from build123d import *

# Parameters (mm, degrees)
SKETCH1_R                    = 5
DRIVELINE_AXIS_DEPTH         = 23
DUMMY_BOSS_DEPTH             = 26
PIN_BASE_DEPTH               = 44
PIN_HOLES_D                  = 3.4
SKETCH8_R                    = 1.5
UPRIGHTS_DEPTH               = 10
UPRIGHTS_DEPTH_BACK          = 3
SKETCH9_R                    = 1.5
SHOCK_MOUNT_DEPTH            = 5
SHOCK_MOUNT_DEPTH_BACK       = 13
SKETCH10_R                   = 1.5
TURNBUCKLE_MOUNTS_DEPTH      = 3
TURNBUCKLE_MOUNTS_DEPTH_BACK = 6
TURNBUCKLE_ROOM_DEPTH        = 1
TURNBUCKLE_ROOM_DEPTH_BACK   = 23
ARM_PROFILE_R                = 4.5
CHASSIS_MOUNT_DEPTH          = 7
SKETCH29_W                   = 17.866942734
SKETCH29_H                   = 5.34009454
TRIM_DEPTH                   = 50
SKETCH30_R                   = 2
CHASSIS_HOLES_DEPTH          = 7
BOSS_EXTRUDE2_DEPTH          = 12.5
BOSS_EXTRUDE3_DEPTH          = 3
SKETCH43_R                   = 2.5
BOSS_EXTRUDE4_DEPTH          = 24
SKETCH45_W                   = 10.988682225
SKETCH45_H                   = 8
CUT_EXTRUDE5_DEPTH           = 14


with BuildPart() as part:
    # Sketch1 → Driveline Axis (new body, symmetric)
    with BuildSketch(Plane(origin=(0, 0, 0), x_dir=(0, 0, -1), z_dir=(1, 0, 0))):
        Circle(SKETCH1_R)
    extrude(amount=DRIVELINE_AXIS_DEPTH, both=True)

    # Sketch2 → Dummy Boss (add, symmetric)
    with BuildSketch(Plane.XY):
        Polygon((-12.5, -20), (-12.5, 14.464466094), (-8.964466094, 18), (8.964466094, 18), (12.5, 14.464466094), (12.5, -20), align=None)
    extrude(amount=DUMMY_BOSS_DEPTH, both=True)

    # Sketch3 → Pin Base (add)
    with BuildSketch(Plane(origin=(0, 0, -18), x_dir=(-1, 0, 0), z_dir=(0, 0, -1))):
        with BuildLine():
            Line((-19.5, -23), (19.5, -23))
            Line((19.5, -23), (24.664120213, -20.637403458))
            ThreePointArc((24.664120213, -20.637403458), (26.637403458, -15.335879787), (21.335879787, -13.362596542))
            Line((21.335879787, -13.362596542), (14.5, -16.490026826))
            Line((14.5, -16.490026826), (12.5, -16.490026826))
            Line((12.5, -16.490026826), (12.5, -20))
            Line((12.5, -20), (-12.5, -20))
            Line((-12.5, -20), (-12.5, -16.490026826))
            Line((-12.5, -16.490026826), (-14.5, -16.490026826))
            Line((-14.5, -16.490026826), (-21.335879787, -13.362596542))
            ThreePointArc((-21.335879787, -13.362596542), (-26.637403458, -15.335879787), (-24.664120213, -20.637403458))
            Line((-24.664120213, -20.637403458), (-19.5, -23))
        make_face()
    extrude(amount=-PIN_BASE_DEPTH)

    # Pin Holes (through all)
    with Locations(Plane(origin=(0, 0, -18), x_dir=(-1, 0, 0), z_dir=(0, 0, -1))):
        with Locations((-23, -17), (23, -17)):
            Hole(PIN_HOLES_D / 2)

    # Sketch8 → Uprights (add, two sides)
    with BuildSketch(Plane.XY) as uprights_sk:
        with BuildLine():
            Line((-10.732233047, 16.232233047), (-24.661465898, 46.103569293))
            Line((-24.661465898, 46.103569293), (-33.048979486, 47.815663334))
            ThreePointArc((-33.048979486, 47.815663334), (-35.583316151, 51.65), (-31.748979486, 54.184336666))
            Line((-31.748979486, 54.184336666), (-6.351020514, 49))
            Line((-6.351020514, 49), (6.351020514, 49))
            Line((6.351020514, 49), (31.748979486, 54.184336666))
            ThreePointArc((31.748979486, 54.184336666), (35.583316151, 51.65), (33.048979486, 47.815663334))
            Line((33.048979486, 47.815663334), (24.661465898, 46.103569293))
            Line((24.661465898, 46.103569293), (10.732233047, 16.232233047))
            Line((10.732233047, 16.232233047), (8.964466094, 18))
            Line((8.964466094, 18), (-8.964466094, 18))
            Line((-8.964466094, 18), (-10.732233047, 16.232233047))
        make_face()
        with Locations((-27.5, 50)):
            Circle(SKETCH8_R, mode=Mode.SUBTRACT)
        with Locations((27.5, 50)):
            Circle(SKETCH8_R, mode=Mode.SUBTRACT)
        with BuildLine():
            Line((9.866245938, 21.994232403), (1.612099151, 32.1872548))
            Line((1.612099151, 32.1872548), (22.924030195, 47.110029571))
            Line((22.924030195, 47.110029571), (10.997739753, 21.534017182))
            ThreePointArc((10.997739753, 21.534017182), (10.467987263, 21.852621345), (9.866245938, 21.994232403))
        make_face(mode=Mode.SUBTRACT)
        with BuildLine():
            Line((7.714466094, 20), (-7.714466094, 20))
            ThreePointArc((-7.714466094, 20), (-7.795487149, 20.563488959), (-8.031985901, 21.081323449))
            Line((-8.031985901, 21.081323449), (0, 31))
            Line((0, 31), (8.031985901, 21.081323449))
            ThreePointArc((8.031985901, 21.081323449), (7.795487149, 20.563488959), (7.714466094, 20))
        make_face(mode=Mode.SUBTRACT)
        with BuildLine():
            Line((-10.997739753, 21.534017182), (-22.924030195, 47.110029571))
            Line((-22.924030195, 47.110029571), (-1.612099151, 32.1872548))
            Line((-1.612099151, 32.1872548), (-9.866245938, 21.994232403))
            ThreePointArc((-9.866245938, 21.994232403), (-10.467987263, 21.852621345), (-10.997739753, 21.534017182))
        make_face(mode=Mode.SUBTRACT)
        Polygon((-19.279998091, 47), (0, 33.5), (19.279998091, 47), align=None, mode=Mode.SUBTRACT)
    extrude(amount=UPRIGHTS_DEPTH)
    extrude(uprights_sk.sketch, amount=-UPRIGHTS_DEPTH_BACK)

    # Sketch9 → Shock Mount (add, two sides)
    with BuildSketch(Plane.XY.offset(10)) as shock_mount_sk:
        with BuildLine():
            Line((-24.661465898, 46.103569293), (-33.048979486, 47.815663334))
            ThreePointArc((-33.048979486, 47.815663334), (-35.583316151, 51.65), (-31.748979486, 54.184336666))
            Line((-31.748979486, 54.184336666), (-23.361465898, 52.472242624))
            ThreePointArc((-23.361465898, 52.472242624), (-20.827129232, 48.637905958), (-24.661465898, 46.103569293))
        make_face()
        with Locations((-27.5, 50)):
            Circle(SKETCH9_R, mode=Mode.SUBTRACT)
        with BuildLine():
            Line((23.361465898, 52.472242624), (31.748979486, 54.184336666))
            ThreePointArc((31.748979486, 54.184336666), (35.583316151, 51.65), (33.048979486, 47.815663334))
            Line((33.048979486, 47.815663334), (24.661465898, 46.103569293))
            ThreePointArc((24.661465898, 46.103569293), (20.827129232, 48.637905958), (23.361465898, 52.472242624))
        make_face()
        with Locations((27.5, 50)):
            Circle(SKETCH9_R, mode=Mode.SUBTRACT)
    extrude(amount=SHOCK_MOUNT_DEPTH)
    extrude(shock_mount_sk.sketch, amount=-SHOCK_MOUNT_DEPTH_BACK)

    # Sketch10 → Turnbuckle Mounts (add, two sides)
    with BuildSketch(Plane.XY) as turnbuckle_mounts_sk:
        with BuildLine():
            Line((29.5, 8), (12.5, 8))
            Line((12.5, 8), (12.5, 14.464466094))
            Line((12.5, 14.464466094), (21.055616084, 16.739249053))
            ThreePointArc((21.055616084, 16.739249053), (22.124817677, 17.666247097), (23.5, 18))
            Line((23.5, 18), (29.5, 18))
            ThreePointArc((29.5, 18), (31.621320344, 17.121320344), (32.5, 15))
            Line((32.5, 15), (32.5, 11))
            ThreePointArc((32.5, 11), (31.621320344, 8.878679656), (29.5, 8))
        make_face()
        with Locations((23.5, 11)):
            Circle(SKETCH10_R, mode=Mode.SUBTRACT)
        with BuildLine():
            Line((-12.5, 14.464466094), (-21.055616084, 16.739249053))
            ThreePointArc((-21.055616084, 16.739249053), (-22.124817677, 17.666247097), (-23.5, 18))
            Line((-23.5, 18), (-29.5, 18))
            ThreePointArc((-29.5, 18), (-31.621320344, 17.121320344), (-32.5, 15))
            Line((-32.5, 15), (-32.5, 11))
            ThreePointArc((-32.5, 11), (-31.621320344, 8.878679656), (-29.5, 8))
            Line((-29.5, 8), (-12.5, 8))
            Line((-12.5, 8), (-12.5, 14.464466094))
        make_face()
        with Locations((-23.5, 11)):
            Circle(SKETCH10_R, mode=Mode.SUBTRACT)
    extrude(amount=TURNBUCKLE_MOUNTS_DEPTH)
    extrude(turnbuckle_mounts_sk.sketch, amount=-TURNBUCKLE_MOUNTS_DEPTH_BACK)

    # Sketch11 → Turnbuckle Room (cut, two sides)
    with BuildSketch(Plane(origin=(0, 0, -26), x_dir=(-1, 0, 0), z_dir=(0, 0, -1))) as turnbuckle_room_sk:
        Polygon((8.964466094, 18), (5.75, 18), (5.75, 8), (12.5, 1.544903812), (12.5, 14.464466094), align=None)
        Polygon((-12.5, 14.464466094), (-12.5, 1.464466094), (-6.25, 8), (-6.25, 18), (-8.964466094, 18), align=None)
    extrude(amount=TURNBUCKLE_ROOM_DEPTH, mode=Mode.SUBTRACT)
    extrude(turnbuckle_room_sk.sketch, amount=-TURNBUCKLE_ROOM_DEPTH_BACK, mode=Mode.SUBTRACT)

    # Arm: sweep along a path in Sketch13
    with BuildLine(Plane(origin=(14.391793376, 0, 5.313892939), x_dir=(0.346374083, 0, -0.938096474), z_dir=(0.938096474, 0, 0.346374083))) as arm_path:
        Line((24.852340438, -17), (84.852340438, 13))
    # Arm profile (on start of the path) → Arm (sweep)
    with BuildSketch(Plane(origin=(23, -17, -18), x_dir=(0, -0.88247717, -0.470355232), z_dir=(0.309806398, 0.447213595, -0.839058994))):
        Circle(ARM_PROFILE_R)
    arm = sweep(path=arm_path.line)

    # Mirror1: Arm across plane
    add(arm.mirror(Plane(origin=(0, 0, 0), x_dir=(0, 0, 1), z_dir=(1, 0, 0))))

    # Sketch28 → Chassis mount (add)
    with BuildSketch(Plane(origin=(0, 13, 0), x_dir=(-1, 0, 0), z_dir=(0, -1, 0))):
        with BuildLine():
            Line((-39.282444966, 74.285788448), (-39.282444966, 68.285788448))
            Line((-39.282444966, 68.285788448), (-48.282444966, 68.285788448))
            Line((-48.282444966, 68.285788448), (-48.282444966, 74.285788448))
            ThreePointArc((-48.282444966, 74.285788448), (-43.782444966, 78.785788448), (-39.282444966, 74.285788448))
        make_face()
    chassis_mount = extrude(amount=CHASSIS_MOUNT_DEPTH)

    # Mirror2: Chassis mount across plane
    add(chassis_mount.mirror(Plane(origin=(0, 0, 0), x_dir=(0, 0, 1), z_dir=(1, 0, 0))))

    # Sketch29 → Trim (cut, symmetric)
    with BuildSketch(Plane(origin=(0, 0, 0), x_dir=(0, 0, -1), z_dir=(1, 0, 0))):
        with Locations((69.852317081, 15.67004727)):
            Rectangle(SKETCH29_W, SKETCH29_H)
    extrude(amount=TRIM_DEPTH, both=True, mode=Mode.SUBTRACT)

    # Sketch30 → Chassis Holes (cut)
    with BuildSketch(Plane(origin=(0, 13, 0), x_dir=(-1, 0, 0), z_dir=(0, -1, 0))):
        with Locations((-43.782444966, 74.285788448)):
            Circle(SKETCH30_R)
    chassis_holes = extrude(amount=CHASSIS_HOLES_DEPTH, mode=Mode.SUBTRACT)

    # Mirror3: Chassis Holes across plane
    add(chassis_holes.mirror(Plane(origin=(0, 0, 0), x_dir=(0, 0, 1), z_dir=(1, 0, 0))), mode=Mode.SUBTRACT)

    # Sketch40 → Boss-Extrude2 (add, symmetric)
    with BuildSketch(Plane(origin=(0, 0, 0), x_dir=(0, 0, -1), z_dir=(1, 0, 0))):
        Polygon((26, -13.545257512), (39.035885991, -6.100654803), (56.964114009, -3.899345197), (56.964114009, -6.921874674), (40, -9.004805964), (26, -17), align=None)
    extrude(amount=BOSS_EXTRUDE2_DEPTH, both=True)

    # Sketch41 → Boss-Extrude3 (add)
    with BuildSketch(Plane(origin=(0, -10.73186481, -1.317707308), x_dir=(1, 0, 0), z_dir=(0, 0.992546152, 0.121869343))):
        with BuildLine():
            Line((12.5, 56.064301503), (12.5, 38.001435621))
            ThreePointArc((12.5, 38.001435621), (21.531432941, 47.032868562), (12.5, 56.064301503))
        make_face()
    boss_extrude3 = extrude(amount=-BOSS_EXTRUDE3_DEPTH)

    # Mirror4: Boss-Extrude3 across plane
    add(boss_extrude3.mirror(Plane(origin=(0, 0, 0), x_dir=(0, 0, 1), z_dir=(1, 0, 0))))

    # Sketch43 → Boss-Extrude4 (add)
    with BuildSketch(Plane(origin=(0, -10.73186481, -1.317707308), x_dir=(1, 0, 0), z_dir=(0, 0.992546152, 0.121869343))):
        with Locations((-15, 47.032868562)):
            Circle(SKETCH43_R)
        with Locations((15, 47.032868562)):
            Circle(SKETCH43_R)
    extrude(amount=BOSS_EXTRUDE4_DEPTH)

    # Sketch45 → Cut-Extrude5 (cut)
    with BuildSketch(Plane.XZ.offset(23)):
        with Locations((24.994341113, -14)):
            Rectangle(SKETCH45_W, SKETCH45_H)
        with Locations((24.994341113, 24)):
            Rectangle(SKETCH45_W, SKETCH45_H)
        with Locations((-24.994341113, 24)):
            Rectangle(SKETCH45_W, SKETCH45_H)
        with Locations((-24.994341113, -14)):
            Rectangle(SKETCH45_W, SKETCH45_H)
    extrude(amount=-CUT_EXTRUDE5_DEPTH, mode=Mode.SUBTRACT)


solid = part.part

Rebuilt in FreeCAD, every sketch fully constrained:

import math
import FreeCAD as App
import Part
import Sketcher
from FreeCAD import Vector
Q = App.Units.Quantity


def add_polygon(sketch, points):
    """Adds a closed chain of lines whose ends are joined by coincident constraints."""
    first, n = sketch.GeometryCount, len(points)
    for a, b in zip(points, points[1:] + points[:1]):
        sketch.addGeometry(Part.LineSegment(App.Vector(*a, 0), App.Vector(*b, 0)), False)
    for i in range(n):
        sketch.addConstraint(Sketcher.Constraint("Coincident", first + i, 2, first + (i + 1) % n, 1))

doc = App.newDocument("Part")
body = doc.addObject("PartDesign::Body", "Body")

sketch1 = body.newObject("Sketcher::SketchObject", "Sketch")
sketch1.AttachmentSupport = (doc.getObject("YZ_Plane"), [""])
sketch1.MapMode = "FlatFace"
sketch1.addGeometry(Part.Circle(Vector(0, 0, 0), Vector(0, 0, 1), 5), False)
sketch1.addConstraint([
    Sketcher.Constraint("Coincident", 0, 3, -1, 1),
    Sketcher.Constraint("Diameter", 0, Q("10 mm")),
])
pad1 = body.newObject("PartDesign::Pad", "Pad")
pad1.Profile = sketch1
pad1.Length = 46
pad1.Midplane = True

sketch2 = body.newObject("Sketcher::SketchObject", "Sketch001")
sketch2.AttachmentSupport = (doc.getObject("XY_Plane"), [""])
sketch2.MapMode = "FlatFace"
add_polygon(sketch2, [(-12, 14), (-12, -20), (12, -20), (12, 14), (9, 18), (-9, 18)])
sketch2.addConstraint([
    Sketcher.Constraint("Vertical", 0),
    Sketcher.Constraint("Horizontal", 1),
    Sketcher.Constraint("Vertical", 2),
    Sketcher.Constraint("Horizontal", 4),
    Sketcher.Constraint("Symmetric", 2, 2, 5, 2, -2),
    Sketcher.Constraint("Perpendicular", 3, 5),
    Sketcher.Constraint("Equal", 3, 5),
    Sketcher.Constraint("DistanceX", 1, 1, 1, 2, Q("25 mm")),
    Sketcher.Constraint("Distance", 3, Q("5 mm")),
    Sketcher.Constraint("DistanceY", 0, 2, -1, 1, Q("20 mm")),
    Sketcher.Constraint("DistanceY", -1, 1, 3, 2, Q("18 mm")),
])
pad2 = body.newObject("PartDesign::Pad", "Pad001")
pad2.Profile = sketch2
pad2.Length = 52
pad2.Midplane = True

sketch3 = body.newObject("Sketcher::SketchObject", "Sketch002")
sketch3.AttachmentSupport = (doc.getObject("XY_Plane"), [""])
sketch3.MapMode = "FlatFace"
sketch3.AttachmentOffset = App.Placement(Vector(0, 0, -18), App.Rotation())
sketch3.addGeometry([
    Part.LineSegment(Vector(19.5, -23, 0), Vector(-19.5, -23, 0)),
    Part.LineSegment(Vector(-19.5, -23, 0), Vector(-24.7, -20.6, 0)),
    Part.ArcOfCircle(Part.Circle(Vector(-23, -17, 0), Vector(0, 0, 1), 4), math.radians(65), math.radians(245)),
    Part.LineSegment(Vector(-21.3, -13.4, 0), Vector(-14.5, -16.5, 0)),
    Part.LineSegment(Vector(-14.5, -16.5, 0), Vector(-12.5, -16.5, 0)),
    Part.LineSegment(Vector(-12.5, -16.5, 0), Vector(-12.5, -20, 0)),
    Part.LineSegment(Vector(-12.5, -20, 0), Vector(12.5, -20, 0)),
    Part.LineSegment(Vector(12.5, -20, 0), Vector(12.5, -16.5, 0)),
    Part.LineSegment(Vector(12.5, -16.5, 0), Vector(14.5, -16.5, 0)),
    Part.LineSegment(Vector(14.5, -16.5, 0), Vector(21.3, -13.4, 0)),
    Part.ArcOfCircle(Part.Circle(Vector(23, -17, 0), Vector(0, 0, 1), 4), math.radians(-65), math.radians(115)),
    Part.LineSegment(Vector(24.7, -20.6, 0), Vector(19.5, -23, 0)),
], False)
sketch3.addConstraint([
    Sketcher.Constraint("Coincident", 0, 2, 1, 1),
    Sketcher.Constraint("Tangent", 1, 2, 2, 2),
    Sketcher.Constraint("Tangent", 2, 1, 3, 1),
    Sketcher.Constraint("Coincident", 3, 2, 4, 1),
    Sketcher.Constraint("Coincident", 4, 2, 5, 1),
    Sketcher.Constraint("Coincident", 5, 2, 6, 1),
    Sketcher.Constraint("Coincident", 6, 2, 7, 1),
    Sketcher.Constraint("Coincident", 7, 2, 8, 1),
    Sketcher.Constraint("Coincident", 8, 2, 9, 1),
    Sketcher.Constraint("Tangent", 9, 2, 10, 2),
    Sketcher.Constraint("Tangent", 10, 1, 11, 1),
    Sketcher.Constraint("Coincident", 11, 2, 0, 1),
    Sketcher.Constraint("Horizontal", 0),
    Sketcher.Constraint("Horizontal", 4),
    Sketcher.Constraint("Vertical", 5),
    Sketcher.Constraint("Horizontal", 6),
    Sketcher.Constraint("Vertical", 7),
    Sketcher.Constraint("Horizontal", 8),
    Sketcher.Constraint("Equal", 2, 10),
    Sketcher.Constraint("Symmetric", 2, 3, 10, 3, -2),
    Sketcher.Constraint("Symmetric", 4, 2, 7, 2, -2),
    Sketcher.Constraint("Parallel", 1, 3),
    Sketcher.Constraint("Parallel", 9, 11),
    Sketcher.Constraint("Horizontal", 2, 1, 9, 2),
    Sketcher.Constraint("Radius", 2, Q("4 mm")),
    Sketcher.Constraint("DistanceX", 0, 2, 0, 1, Q("39 mm")),
    Sketcher.Constraint("DistanceX", 4, 1, 4, 2, Q("2 mm")),
    Sketcher.Constraint("DistanceX", 6, 1, 6, 2, Q("25 mm")),
    Sketcher.Constraint("DistanceX", 2, 3, -1, 1, Q("23 mm")),
    Sketcher.Constraint("DistanceY", 2, 3, -1, 1, Q("17 mm")),
    Sketcher.Constraint("DistanceY", 0, 2, -1, 1, Q("23 mm")),
    Sketcher.Constraint("DistanceY", 5, 2, -1, 1, Q("20 mm")),
])
pad3 = body.newObject("PartDesign::Pad", "Pad002")
pad3.Profile = sketch3
pad3.Length = 44

sketch4 = body.newObject("Sketcher::SketchObject", "Sketch003")
sketch4.AttachmentSupport = (doc.getObject("XY_Plane"), [""])
sketch4.MapMode = "FlatFace"
sketch4.AttachmentOffset = App.Placement(Vector(0, 0, -18), App.Rotation())
sketch4.addGeometry([
    Part.Circle(Vector(23, -17, 0), Vector(0, 0, 1), 1.7),
    Part.Circle(Vector(-23, -17, 0), Vector(0, 0, 1), 1.7),
], False)
sketch4.addConstraint([
    Sketcher.Constraint("Equal", 0, 1),
    Sketcher.Constraint("Symmetric", 0, 3, 1, 3, -2),
    Sketcher.Constraint("Diameter", 0, Q("3.4 mm")),
    Sketcher.Constraint("DistanceX", -1, 1, 0, 3, Q("23 mm")),
    Sketcher.Constraint("DistanceY", 0, 3, -1, 1, Q("17 mm")),
])
doc.recompute()
hole = body.newObject("PartDesign::Hole", "Hole")
hole.Profile = sketch4
hole.ThreadType = "None"
hole.Diameter = 3.4
hole.DepthType = "ThroughAll"
hole.Reversed = True

sketch5 = body.newObject("Sketcher::SketchObject", "Sketch004")
sketch5.AttachmentSupport = (doc.getObject("XY_Plane"), [""])
sketch5.MapMode = "FlatFace"
sketch5.addGeometry(Part.LineSegment(Vector(-24.7, 46.1, 0), Vector(-10.7, 16.2, 0)), False)
sketch5.addGeometry(Part.LineSegment(Vector(-10.7, 16.2, 0), Vector(-9, 18, 0)), False)
sketch5.addGeometry(Part.LineSegment(Vector(-9, 18, 0), Vector(9, 18, 0)), False)
sketch5.addGeometry(Part.LineSegment(Vector(9, 18, 0), Vector(10.7, 16.2, 0)), False)
sketch5.addGeometry(Part.LineSegment(Vector(10.7, 16.2, 0), Vector(24.7, 46.1, 0)), False)
sketch5.addGeometry(Part.LineSegment(Vector(24.7, 46.1, 0), Vector(33, 47.8, 0)), False)
sketch5.addGeometry(Part.ArcOfCircle(Part.Circle(Vector(32.4, 51, 0), Vector(0, 0, 1), 3.2), math.radians(-78), math.radians(102)), False)
sketch5.addGeometry(Part.LineSegment(Vector(31.7, 54.2, 0), Vector(6.4, 49, 0)), False)
sketch5.addGeometry(Part.LineSegment(Vector(6.4, 49, 0), Vector(-6.4, 49, 0)), False)
sketch5.addGeometry(Part.LineSegment(Vector(-6.4, 49, 0), Vector(-31.7, 54.2, 0)), False)
sketch5.addGeometry(Part.ArcOfCircle(Part.Circle(Vector(-32.4, 51, 0), Vector(0, 0, 1), 3.2), math.radians(78), math.radians(258)), False)
sketch5.addGeometry(Part.LineSegment(Vector(-33, 47.8, 0), Vector(-24.7, 46.1, 0)), False)
sketch5.addGeometry(Part.LineSegment(Vector(9.9, 22, 0), Vector(1.6, 32.2, 0)), False)
sketch5.addGeometry(Part.LineSegment(Vector(1.6, 32.2, 0), Vector(22.9, 47.1, 0)), False)
sketch5.addGeometry(Part.LineSegment(Vector(22.9, 47.1, 0), Vector(11, 21.5, 0)), False)
sketch5.addGeometry(Part.ArcOfCircle(Part.Circle(Vector(9.7, 20, 0), Vector(0, 0, 1), 2), math.radians(50), math.radians(86)), False)
sketch5.addGeometry(Part.LineSegment(Vector(7.7, 20, 0), Vector(-7.7, 20, 0)), False)
sketch5.addGeometry(Part.ArcOfCircle(Part.Circle(Vector(-9.7, 20, 0), Vector(0, 0, 1), 2), math.radians(0), math.radians(33)), False)
sketch5.addGeometry(Part.LineSegment(Vector(-8, 21.1, 0), Vector(0, 31, 0)), False)
sketch5.addGeometry(Part.LineSegment(Vector(0, 31, 0), Vector(8, 21.1, 0)), False)
sketch5.addGeometry(Part.ArcOfCircle(Part.Circle(Vector(9.7, 20, 0), Vector(0, 0, 1), 2), math.radians(147), math.radians(180)), False)
sketch5.addGeometry(Part.LineSegment(Vector(-11, 21.5, 0), Vector(-22.9, 47.1, 0)), False)
sketch5.addGeometry(Part.LineSegment(Vector(-22.9, 47.1, 0), Vector(-1.6, 32.2, 0)), False)
sketch5.addGeometry(Part.LineSegment(Vector(-1.6, 32.2, 0), Vector(-9.9, 22, 0)), False)
sketch5.addGeometry(Part.ArcOfCircle(Part.Circle(Vector(-9.7, 20, 0), Vector(0, 0, 1), 2), math.radians(94), math.radians(130)), False)
sketch5.addGeometry(Part.Circle(Vector(27.5, 50, 0), Vector(0, 0, 1), 1.5), False)
add_polygon(sketch5, [(-19.3, 47), (19.3, 47), (0, 33.5)])
sketch5.addGeometry(Part.Circle(Vector(-27.5, 50, 0), Vector(0, 0, 1), 1.5), False)
sketch5.addConstraint([
    Sketcher.Constraint("Coincident", 0, 2, 1, 1),
    Sketcher.Constraint("Coincident", 1, 2, 2, 1),
    Sketcher.Constraint("Coincident", 2, 2, 3, 1),
    Sketcher.Constraint("Coincident", 3, 2, 4, 1),
    Sketcher.Constraint("Coincident", 4, 2, 5, 1),
    Sketcher.Constraint("Tangent", 5, 2, 6, 1),
    Sketcher.Constraint("Tangent", 6, 2, 7, 1),
    Sketcher.Constraint("Coincident", 7, 2, 8, 1),
    Sketcher.Constraint("Coincident", 8, 2, 9, 1),
    Sketcher.Constraint("Tangent", 9, 2, 10, 1),
    Sketcher.Constraint("Tangent", 10, 2, 11, 1),
    Sketcher.Constraint("Coincident", 11, 2, 0, 1),
    Sketcher.Constraint("Coincident", 12, 2, 13, 1),
    Sketcher.Constraint("Coincident", 13, 2, 14, 1),
    Sketcher.Constraint("Coincident", 14, 2, 15, 1),
    Sketcher.Constraint("Coincident", 15, 2, 12, 1),
    Sketcher.Constraint("Coincident", 16, 2, 17, 1),
    Sketcher.Constraint("Coincident", 17, 2, 18, 1),
    Sketcher.Constraint("Coincident", 18, 2, 19, 1),
    Sketcher.Constraint("Coincident", 19, 2, 20, 1),
    Sketcher.Constraint("Coincident", 20, 2, 16, 1),
    Sketcher.Constraint("Coincident", 21, 2, 22, 1),
    Sketcher.Constraint("Coincident", 22, 2, 23, 1),
    Sketcher.Constraint("Coincident", 23, 2, 24, 1),
    Sketcher.Constraint("Coincident", 24, 2, 21, 1),
    Sketcher.Constraint("Horizontal", 2),
    Sketcher.Constraint("Horizontal", 8),
    Sketcher.Constraint("Horizontal", 16),
    Sketcher.Constraint("Horizontal", 26),
    Sketcher.Constraint("Coincident", 20, 3, 15, 3),
    Sketcher.Constraint("Coincident", 24, 3, 17, 3),
    Sketcher.Constraint("Equal", 6, 10),
    Sketcher.Constraint("Equal", 15, 17),
    Sketcher.Constraint("Equal", 17, 20),
    Sketcher.Constraint("Equal", 20, 24),
    Sketcher.Constraint("Equal", 25, 29),
    Sketcher.Constraint("Symmetric", 6, 3, 10, 3, -2),
    Sketcher.Constraint("Symmetric", 15, 3, 17, 3, -2),
    Sketcher.Constraint("Symmetric", 25, 3, 29, 3, -2),
    Sketcher.Constraint("Symmetric", 0, 2, 3, 2, -2),
    Sketcher.Constraint("Symmetric", 4, 2, 11, 2, -2),
    Sketcher.Constraint("Symmetric", 13, 2, 21, 2, -2),
    Sketcher.Constraint("Symmetric", 12, 2, 22, 2, -2),
    Sketcher.Constraint("PointOnObject", 18, 2, -2),
    Sketcher.Constraint("PointOnObject", 27, 2, -2),
    Sketcher.Constraint("Perpendicular", 1, 3),
    Sketcher.Constraint("Parallel", 5, 7),
    Sketcher.Constraint("Parallel", 9, 11),
    Sketcher.Constraint("Parallel", 4, 14),
    Sketcher.Constraint("Parallel", 12, 19),
    Sketcher.Constraint("Parallel", 0, 21),
    Sketcher.Constraint("Parallel", 18, 23),
    Sketcher.Constraint("Parallel", 13, 27),
    Sketcher.Constraint("Parallel", 22, 28),
    Sketcher.Constraint("Horizontal", 24, 3, 16, 2),
    Sketcher.Constraint("Horizontal", 17, 2, 19, 2),
    Sketcher.Constraint("Equal", 1, 3),
    Sketcher.Constraint("Diameter", 25, Q("3 mm")),
    Sketcher.Constraint("Radius", 15, Q("2 mm")),
    Sketcher.Constraint("Angle", 0, Q("-65 deg")),
    Sketcher.Constraint("Angle", 12, Q("129 deg")),
    Sketcher.Constraint("Angle", 13, Q("35 deg")),
    Sketcher.Constraint("Radius", 6, Q("3.25 mm")),
    Sketcher.Constraint("DistanceY", -1, 1, 6, 3, Q("51 mm")),
    Sketcher.Constraint("DistanceY", -1, 1, 15, 3, Q("20 mm")),
    Sketcher.Constraint("DistanceY", -1, 1, 25, 3, Q("50 mm")),
    Sketcher.Constraint("DistanceY", -1, 1, 1, 2, Q("18 mm")),
    Sketcher.Constraint("DistanceY", -1, 1, 7, 2, Q("49 mm")),
    Sketcher.Constraint("DistanceY", -1, 1, 18, 2, Q("31 mm")),
    Sketcher.Constraint("DistanceY", -1, 1, 26, 2, Q("47 mm")),
    Sketcher.Constraint("Distance", 1, Q("2.5 mm")),
    Sketcher.Constraint("DistanceX", -1, 1, 25, 3, Q("27.5 mm")),
    Sketcher.Constraint("DistanceY", -1, 1, 27, 2, Q("33.5 mm")),
    Sketcher.Constraint("DistanceX", 6, 2, 5, 2, Q("1.3 mm")),
    Sketcher.Constraint("DistanceX", 9, 2, 7, 2, Q("38.1 mm")),
    Sketcher.Constraint("DistanceX", 17, 3, 1, 2, Q("0.75 mm")),
    Sketcher.Constraint("DistanceX", 15, 3, 4, 2, Q("14.947 mm")),
    Sketcher.Constraint("DistanceY", 3, 2, 15, 2, Q("5.761999 mm")),
    Sketcher.Constraint("DistanceX", -1, 1, 12, 2, Q("1.612099 mm")),
    Sketcher.Constraint("DistanceX", -1, 1, 13, 2, Q("22.92403 mm")),
])
pad4 = body.newObject("PartDesign::Pad", "Pad003")
pad4.Profile = sketch5
pad4.Type = "TwoLengths"
pad4.Length = 10
pad4.Length2 = 3

sketch6 = body.newObject("Sketcher::SketchObject", "Sketch005")
sketch6.AttachmentSupport = (doc.getObject("XY_Plane"), [""])
sketch6.MapMode = "FlatFace"
sketch6.AttachmentOffset = App.Placement(Vector(0, 0, 10), App.Rotation())
sketch6.addGeometry([
    Part.LineSegment(Vector(-33, 47.8, 0), Vector(-24.7, 46.1, 0)),
    Part.ArcOfCircle(Part.Circle(Vector(-24, 49.3, 0), Vector(0, 0, 1), 3.2), math.radians(-102), math.radians(78)),
    Part.LineSegment(Vector(-23.4, 52.5, 0), Vector(-31.7, 54.2, 0)),
    Part.ArcOfCircle(Part.Circle(Vector(-32.4, 51, 0), Vector(0, 0, 1), 3.2), math.radians(78), math.radians(258)),
    Part.Circle(Vector(-27.5, 50, 0), Vector(0, 0, 1), 1.5),
    Part.LineSegment(Vector(31.7, 54.2, 0), Vector(23.4, 52.5, 0)),
    Part.ArcOfCircle(Part.Circle(Vector(24, 49.3, 0), Vector(0, 0, 1), 3.2), math.radians(102), math.radians(282)),
    Part.LineSegment(Vector(24.7, 46.1, 0), Vector(33, 47.8, 0)),
    Part.ArcOfCircle(Part.Circle(Vector(32.4, 51, 0), Vector(0, 0, 1), 3.2), math.radians(-78), math.radians(102)),
    Part.Circle(Vector(27.5, 50, 0), Vector(0, 0, 1), 1.5),
], False)
sketch6.addConstraint([
    Sketcher.Constraint("Tangent", 0, 2, 1, 1),
    Sketcher.Constraint("Tangent", 1, 2, 2, 1),
    Sketcher.Constraint("Tangent", 2, 2, 3, 1),
    Sketcher.Constraint("Tangent", 3, 2, 0, 1),
    Sketcher.Constraint("Tangent", 5, 2, 6, 1),
    Sketcher.Constraint("Tangent", 6, 2, 7, 1),
    Sketcher.Constraint("Tangent", 7, 2, 8, 1),
    Sketcher.Constraint("Tangent", 8, 2, 5, 1),
    Sketcher.Constraint("Equal", 1, 3),
    Sketcher.Constraint("Equal", 3, 6),
    Sketcher.Constraint("Equal", 6, 8),
    Sketcher.Constraint("Equal", 4, 9),
    Sketcher.Constraint("Symmetric", 1, 3, 6, 3, -2),
    Sketcher.Constraint("Symmetric", 3, 3, 8, 3, -2),
    Sketcher.Constraint("Symmetric", 4, 3, 9, 3, -2),
    Sketcher.Constraint("Diameter", 4, Q("3 mm")),
    Sketcher.Constraint("Radius", 1, Q("3.25 mm")),
    Sketcher.Constraint("DistanceY", -1, 1, 3, 3, Q("51 mm")),
    Sketcher.Constraint("DistanceY", -1, 1, 4, 3, Q("50 mm")),
    Sketcher.Constraint("DistanceX", 4, 3, 9, 3, Q("55 mm")),
    Sketcher.Constraint("DistanceX", 0, 2, 1, 2, Q("1.3 mm")),
    Sketcher.Constraint("Distance", 0, Q("8.56047 mm")),
    Sketcher.Constraint("DistanceX", 3, 3, -1, 1, Q("32.398979 mm")),
])
pad5 = body.newObject("PartDesign::Pad", "Pad004")
pad5.Profile = sketch6
pad5.Type = "TwoLengths"
pad5.Length = 5
pad5.Length2 = 13

sketch7 = body.newObject("Sketcher::SketchObject", "Sketch006")
sketch7.AttachmentSupport = (doc.getObject("XY_Plane"), [""])
sketch7.MapMode = "FlatFace"
sketch7.addGeometry([
    Part.LineSegment(Vector(12.5, 8, 0), Vector(29.5, 8, 0)),
    Part.ArcOfCircle(Part.Circle(Vector(29.5, 11, 0), Vector(0, 0, 1), 3), math.radians(-90), math.radians(0)),
    Part.LineSegment(Vector(32.5, 11, 0), Vector(32.5, 15, 0)),
    Part.ArcOfCircle(Part.Circle(Vector(29.5, 15, 0), Vector(0, 0, 1), 3), math.radians(0), math.radians(90)),
    Part.LineSegment(Vector(29.5, 18, 0), Vector(23.5, 18, 0)),
    Part.ArcOfCircle(Part.Circle(Vector(23.5, 15, 0), Vector(0, 0, 1), 3), math.radians(90), math.radians(145)),
    Part.LineSegment(Vector(21.1, 16.7, 0), Vector(12.5, 14.5, 0)),
    Part.LineSegment(Vector(12.5, 14.5, 0), Vector(12.5, 8, 0)),
    Part.Circle(Vector(23.5, 11, 0), Vector(0, 0, 1), 1.5),
    Part.LineSegment(Vector(-12.5, 14.5, 0), Vector(-21.1, 16.7, 0)),
    Part.ArcOfCircle(Part.Circle(Vector(-23.5, 15, 0), Vector(0, 0, 1), 3), math.radians(35), math.radians(90)),
    Part.LineSegment(Vector(-23.5, 18, 0), Vector(-29.5, 18, 0)),
    Part.ArcOfCircle(Part.Circle(Vector(-29.5, 15, 0), Vector(0, 0, 1), 3), math.radians(90), math.radians(180)),
    Part.LineSegment(Vector(-32.5, 15, 0), Vector(-32.5, 11, 0)),
    Part.ArcOfCircle(Part.Circle(Vector(-29.5, 11, 0), Vector(0, 0, 1), 3), math.radians(180), math.radians(270)),
    Part.LineSegment(Vector(-29.5, 8, 0), Vector(-12.5, 8, 0)),
    Part.LineSegment(Vector(-12.5, 8, 0), Vector(-12.5, 14.5, 0)),
    Part.Circle(Vector(-23.5, 11, 0), Vector(0, 0, 1), 1.5),
], False)
sketch7.addConstraint([
    Sketcher.Constraint("Tangent", 0, 2, 1, 1),
    Sketcher.Constraint("Tangent", 1, 2, 2, 1),
    Sketcher.Constraint("Tangent", 2, 2, 3, 1),
    Sketcher.Constraint("Tangent", 3, 2, 4, 1),
    Sketcher.Constraint("Tangent", 4, 2, 5, 1),
    Sketcher.Constraint("Coincident", 5, 2, 6, 1),
    Sketcher.Constraint("Coincident", 6, 2, 7, 1),
    Sketcher.Constraint("Coincident", 7, 2, 0, 1),
    Sketcher.Constraint("Coincident", 9, 2, 10, 1),
    Sketcher.Constraint("Tangent", 10, 2, 11, 1),
    Sketcher.Constraint("Tangent", 11, 2, 12, 1),
    Sketcher.Constraint("Tangent", 12, 2, 13, 1),
    Sketcher.Constraint("Tangent", 13, 2, 14, 1),
    Sketcher.Constraint("Tangent", 14, 2, 15, 1),
    Sketcher.Constraint("Coincident", 15, 2, 16, 1),
    Sketcher.Constraint("Coincident", 16, 2, 9, 1),
    Sketcher.Constraint("Horizontal", 0),
    Sketcher.Constraint("Vertical", 2),
    Sketcher.Constraint("Horizontal", 4),
    Sketcher.Constraint("Vertical", 7),
    Sketcher.Constraint("Horizontal", 11),
    Sketcher.Constraint("Vertical", 13),
    Sketcher.Constraint("Horizontal", 15),
    Sketcher.Constraint("Vertical", 16),
    Sketcher.Constraint("Equal", 1, 3),
    Sketcher.Constraint("Equal", 3, 5),
    Sketcher.Constraint("Equal", 5, 10),
    Sketcher.Constraint("Equal", 10, 12),
    Sketcher.Constraint("Equal", 12, 14),
    Sketcher.Constraint("Equal", 8, 17),
    Sketcher.Constraint("Symmetric", 5, 3, 10, 3, -2),
    Sketcher.Constraint("Symmetric", 1, 3, 14, 3, -2),
    Sketcher.Constraint("Symmetric", 8, 3, 17, 3, -2),
    Sketcher.Constraint("Symmetric", 6, 2, 16, 2, -2),
    Sketcher.Constraint("Horizontal", 1, 3, 8, 3),
    Sketcher.Constraint("Horizontal", 5, 2, 9, 2),
    Sketcher.Constraint("Vertical", 5, 3, 8, 3),
    Sketcher.Constraint("Diameter", 8, Q("3 mm")),
    Sketcher.Constraint("Radius", 1, Q("3 mm")),
    Sketcher.Constraint("DistanceX", 0, 1, 0, 2, Q("17 mm")),
    Sketcher.Constraint("DistanceX", 4, 2, 4, 1, Q("6 mm")),
    Sketcher.Constraint("DistanceY", 2, 1, 2, 2, Q("4 mm")),
    Sketcher.Constraint("DistanceY", -1, 1, 1, 3, Q("11 mm")),
    Sketcher.Constraint("DistanceX", 10, 3, 5, 3, Q("47 mm")),
    Sketcher.Constraint("DistanceY", 7, 2, 7, 1, Q("6.464466 mm")),
    Sketcher.Constraint("DistanceY", -1, 1, 5, 2, Q("16.739249 mm")),
])
pad6 = body.newObject("PartDesign::Pad", "Pad005")
pad6.Profile = sketch7
pad6.Type = "TwoLengths"
pad6.Length = 3
pad6.Length2 = 6

sketch8 = body.newObject("Sketcher::SketchObject", "Sketch007")
sketch8.AttachmentSupport = (doc.getObject("XY_Plane"), [""])
sketch8.MapMode = "FlatFace"
sketch8.AttachmentOffset = App.Placement(Vector(0, 0, -26), App.Rotation())
add_polygon(sketch8, [(-9, 18), (-5.8, 18), (-5.8, 8), (-12.5, 1.5), (-12.5, 14.5)])
add_polygon(sketch8, [(12.5, 14.5), (12.5, 1.5), (6.2, 8), (6.2, 18), (9, 18)])
sketch8.addConstraint([
    Sketcher.Constraint("Horizontal", 0),
    Sketcher.Constraint("Vertical", 1),
    Sketcher.Constraint("Vertical", 3),
    Sketcher.Constraint("Vertical", 5),
    Sketcher.Constraint("Vertical", 7),
    Sketcher.Constraint("Horizontal", 8),
    Sketcher.Constraint("Symmetric", 4, 2, 8, 2, -2),
    Sketcher.Constraint("Symmetric", 3, 2, 9, 2, -2),
    Sketcher.Constraint("Perpendicular", 2, 6),
    Sketcher.Constraint("Perpendicular", 4, 9),
    Sketcher.Constraint("Horizontal", 1, 2, 6, 2),
    Sketcher.Constraint("DistanceY", 1, 2, 1, 1, Q("10 mm")),
    Sketcher.Constraint("DistanceY", 5, 2, 5, 1, Q("13 mm")),
    Sketcher.Constraint("Distance", 4, Q("5 mm")),
    Sketcher.Constraint("DistanceY", -1, 1, 0, 2, Q("18 mm")),
    Sketcher.Constraint("DistanceX", 2, 2, 5, 2, Q("25 mm")),
    Sketcher.Constraint("DistanceX", 1, 2, 6, 2, Q("12 mm")),
    Sketcher.Constraint("DistanceX", 0, 2, -1, 1, Q("5.75 mm")),
])
pocket1 = body.newObject("PartDesign::Pocket", "Pocket")
pocket1.Profile = sketch8
pocket1.Type = "TwoLengths"
pocket1.Length = 1
pocket1.Length2 = 23

sketch9 = body.newObject("Sketcher::SketchObject", "Sketch008")
sketch9.Placement = App.Placement(Vector(23, -17, -18), App.Rotation(Vector(0, -0.88247717, -0.470355232), Vector(-0.950799661, 0.14571906, -0.273397073), Vector(0.309806398, 0.447213595, -0.839058994), "ZXY"))
sketch9.addGeometry(Part.Circle(Vector(0, 0, 0), Vector(0, 0, 1), 4.5), False)
sketch9.addConstraint([
    Sketcher.Constraint("Coincident", 0, 3, -1, 1),
    Sketcher.Constraint("Diameter", 0, Q("9 mm")),
])

sketch10 = body.newObject("Sketcher::SketchObject", "Sketch009")
sketch10.Placement = App.Placement(Vector(0, -20.710421, -11.038535), App.Rotation(Vector(0, 0.470355232, -0.88247717), Vector(1, 0, 0), Vector(0, -0.88247717, -0.470355232), "ZXY"))
sketch10.addGeometry(Part.LineSegment(Vector(8, 23, 0), Vector(72, 44, 0)), False)
sketch10.addConstraint([
    Sketcher.Constraint("DistanceY", -1, 1, 0, 1, Q("23 mm")),
    Sketcher.Constraint("Distance", 0, Q("67.082039 mm")),
    Sketcher.Constraint("DistanceX", -1, 1, 0, 1, Q("7.88855 mm")),
    Sketcher.Constraint("DistanceX", -1, 1, 0, 2, Q("71.67013 mm")),
])
doc.recompute()

additivepipe = body.newObject("PartDesign::AdditivePipe", "AdditivePipe")
additivepipe.Profile = sketch9
additivepipe.Spine = (sketch10, ["Edge1"])
doc.recompute()

mirrored = body.newObject("PartDesign::Mirrored", "Mirrored")
mirrored.Originals = [additivepipe]
mirrored.MirrorPlane = (doc.getObject("YZ_Plane"), [""])
body.Tip = mirrored

sketch11 = body.newObject("Sketcher::SketchObject", "Sketch010")
sketch11.AttachmentSupport = (doc.getObject("XZ_Plane"), [""])
sketch11.MapMode = "FlatFace"
sketch11.AttachmentOffset = App.Placement(Vector(0, 0, -13), App.Rotation())
sketch11.addGeometry([
    Part.LineSegment(Vector(39.3, -68.3, 0), Vector(39.3, -74.3, 0)),
    Part.ArcOfCircle(Part.Circle(Vector(43.8, -74.3, 0), Vector(0, 0, 1), 4.5), math.radians(180), math.radians(360)),
    Part.LineSegment(Vector(48.3, -74.3, 0), Vector(48.3, -68.3, 0)),
    Part.LineSegment(Vector(48.3, -68.3, 0), Vector(39.3, -68.3, 0)),
], False)
sketch11.addConstraint([
    Sketcher.Constraint("Tangent", 0, 2, 1, 1),
    Sketcher.Constraint("Tangent", 1, 2, 2, 1),
    Sketcher.Constraint("Coincident", 2, 2, 3, 1),
    Sketcher.Constraint("Coincident", 3, 2, 0, 1),
    Sketcher.Constraint("Vertical", 0),
    Sketcher.Constraint("Vertical", 2),
    Sketcher.Constraint("Horizontal", 3),
    Sketcher.Constraint("Radius", 1, Q("4.5 mm")),
    Sketcher.Constraint("DistanceY", 0, 2, 0, 1, Q("6 mm")),
    Sketcher.Constraint("DistanceY", 1, 3, -1, 1, Q("74.285788 mm")),
    Sketcher.Constraint("DistanceX", -1, 1, 1, 3, Q("43.782445 mm")),
])
pad7 = body.newObject("PartDesign::Pad", "Pad006")
pad7.Profile = sketch11
pad7.Length = 7
doc.recompute()

mirrored2 = body.newObject("PartDesign::Mirrored", "Mirrored001")
mirrored2.Originals = [pad7]
mirrored2.MirrorPlane = (doc.getObject("YZ_Plane"), [""])
body.Tip = mirrored2

sketch12 = body.newObject("Sketcher::SketchObject", "Sketch011")
sketch12.AttachmentSupport = (doc.getObject("YZ_Plane"), [""])
sketch12.MapMode = "FlatFace"
add_polygon(sketch12, [(18, -61), (13, -61), (13, -79), (18, -79)])
sketch12.addConstraint([
    Sketcher.Constraint("Horizontal", 0),
    Sketcher.Constraint("Vertical", 1),
    Sketcher.Constraint("Horizontal", 2),
    Sketcher.Constraint("Vertical", 3),
    Sketcher.Constraint("DistanceX", -1, 1, 0, 2, Q("13 mm")),
    Sketcher.Constraint("DistanceX", 0, 2, 0, 1, Q("5.340095 mm")),
    Sketcher.Constraint("DistanceY", 1, 2, 1, 1, Q("17.866943 mm")),
    Sketcher.Constraint("DistanceY", 1, 2, -1, 1, Q("78.785788 mm")),
])
pocket2 = body.newObject("PartDesign::Pocket", "Pocket001")
pocket2.Profile = sketch12
pocket2.Length = 100
pocket2.Midplane = True

sketch13 = body.newObject("Sketcher::SketchObject", "Sketch012")
sketch13.AttachmentSupport = (doc.getObject("XZ_Plane"), [""])
sketch13.MapMode = "FlatFace"
sketch13.AttachmentOffset = App.Placement(Vector(0, 0, -13), App.Rotation())
sketch13.addGeometry(Part.Circle(Vector(43.8, -74.3, 0), Vector(0, 0, 1), 2), False)
sketch13.addConstraint([
    Sketcher.Constraint("Diameter", 0, Q("4 mm")),
    Sketcher.Constraint("DistanceY", 0, 3, -1, 1, Q("74.285788 mm")),
    Sketcher.Constraint("DistanceX", -1, 1, 0, 3, Q("43.782445 mm")),
])
pocket3 = body.newObject("PartDesign::Pocket", "Pocket002")
pocket3.Profile = sketch13
pocket3.Length = 7
pocket3.Reversed = True
doc.recompute()

mirrored3 = body.newObject("PartDesign::Mirrored", "Mirrored002")
mirrored3.Originals = [pocket3]
mirrored3.MirrorPlane = (doc.getObject("YZ_Plane"), [""])
body.Tip = mirrored3

sketch14 = body.newObject("Sketcher::SketchObject", "Sketch013")
sketch14.AttachmentSupport = (doc.getObject("YZ_Plane"), [""])
sketch14.MapMode = "FlatFace"
add_polygon(sketch14, [(-6.1, -39), (-13.5, -26), (-17, -26), (-9, -40), (-6.9, -57), (-3.9, -57)])
sketch14.addConstraint([
    Sketcher.Constraint("Horizontal", 1),
    Sketcher.Constraint("Horizontal", 4),
    Sketcher.Constraint("Parallel", 0, 2),
    Sketcher.Constraint("Parallel", 3, 5),
    Sketcher.Constraint("Angle", 3, Q("-83 deg")),
    Sketcher.Constraint("DistanceY", 0, 2, -1, 1, Q("26 mm")),
    Sketcher.Constraint("DistanceX", 1, 2, -1, 1, Q("17 mm")),
    Sketcher.Constraint("DistanceY", 2, 2, -1, 1, Q("40 mm")),
    Sketcher.Constraint("DistanceX", 4, 1, 4, 2, Q("3.022529 mm")),
    Sketcher.Constraint("Distance", 2, Q("16.122132 mm")),
    Sketcher.Constraint("Distance", 3, Q("17.091512 mm")),
    Sketcher.Constraint("DistanceX", 1, 2, 1, 1, Q("3.454742 mm")),
])
pad8 = body.newObject("PartDesign::Pad", "Pad007")
pad8.Profile = sketch14
pad8.Length = 25
pad8.Midplane = True

sketch15 = body.newObject("Sketcher::SketchObject", "Sketch014")
sketch15.Placement = App.Placement(Vector(0, -10.731865, -1.317707), App.Rotation(Vector(1, 0, 0), Vector(0, 0.121869343, -0.992546152), Vector(0, 0.992546152, 0.121869343), "ZXY"))
sketch15.addGeometry([
    Part.LineSegment(Vector(12, 56, 0), Vector(12, 38, 0)),
    Part.ArcOfCircle(Part.Circle(Vector(12, 47, 0), Vector(0, 0, 1), 9), math.radians(-90), math.radians(90)),
], False)
sketch15.addConstraint([
    Sketcher.Constraint("Coincident", 0, 1, 1, 2),
    Sketcher.Constraint("Coincident", 1, 1, 0, 2),
    Sketcher.Constraint("Vertical", 0),
    Sketcher.Constraint("Vertical", 1, 3, 0, 1),
    Sketcher.Constraint("DistanceX", -1, 1, 1, 3, Q("12.5 mm")),
    Sketcher.Constraint("Radius", 1, Q("9.031433 mm")),
    Sketcher.Constraint("DistanceY", -1, 1, 0, 1, Q("56.064302 mm")),
])
pad9 = body.newObject("PartDesign::Pad", "Pad008")
pad9.Profile = sketch15
pad9.Length = 3
pad9.Reversed = True
doc.recompute()

mirrored4 = body.newObject("PartDesign::Mirrored", "Mirrored003")
mirrored4.Originals = [pad9]
mirrored4.MirrorPlane = (doc.getObject("YZ_Plane"), [""])
body.Tip = mirrored4

sketch16 = body.newObject("Sketcher::SketchObject", "Sketch015")
sketch16.Placement = App.Placement(Vector(0, -10.731865, -1.317707), App.Rotation(Vector(1, 0, 0), Vector(0, 0.121869343, -0.992546152), Vector(0, 0.992546152, 0.121869343), "ZXY"))
sketch16.addGeometry([
    Part.Circle(Vector(-15, 47, 0), Vector(0, 0, 1), 2.5),
    Part.Circle(Vector(15, 47, 0), Vector(0, 0, 1), 2.5),
], False)
sketch16.addConstraint([
    Sketcher.Constraint("Equal", 0, 1),
    Sketcher.Constraint("Symmetric", 0, 3, 1, 3, -2),
    Sketcher.Constraint("Diameter", 0, Q("5 mm")),
    Sketcher.Constraint("DistanceX", 0, 3, -1, 1, Q("15 mm")),
    Sketcher.Constraint("DistanceY", -1, 1, 0, 3, Q("47.032869 mm")),
])
pad10 = body.newObject("PartDesign::Pad", "Pad009")
pad10.Profile = sketch16
pad10.Length = 24

sketch17 = body.newObject("Sketcher::SketchObject", "Sketch016")
sketch17.AttachmentSupport = (doc.getObject("XZ_Plane"), [""])
sketch17.MapMode = "FlatFace"
sketch17.AttachmentOffset = App.Placement(Vector(0, 0, 23), App.Rotation())
add_polygon(sketch17, [(20, -10), (20, -18), (30, -18), (30, -10)])
add_polygon(sketch17, [(20, 28), (20, 20), (30, 20), (30, 28)])
add_polygon(sketch17, [(-30, 28), (-30, 20), (-20, 20), (-20, 28)])
add_polygon(sketch17, [(-30, -10), (-30, -18), (-20, -18), (-20, -10)])
sketch17.addConstraint([
    Sketcher.Constraint("Vertical", 0),
    Sketcher.Constraint("Horizontal", 1),
    Sketcher.Constraint("Vertical", 2),
    Sketcher.Constraint("Horizontal", 3),
    Sketcher.Constraint("Vertical", 4),
    Sketcher.Constraint("Horizontal", 5),
    Sketcher.Constraint("Vertical", 6),
    Sketcher.Constraint("Horizontal", 7),
    Sketcher.Constraint("Vertical", 8),
    Sketcher.Constraint("Horizontal", 9),
    Sketcher.Constraint("Vertical", 10),
    Sketcher.Constraint("Horizontal", 11),
    Sketcher.Constraint("Vertical", 12),
    Sketcher.Constraint("Horizontal", 13),
    Sketcher.Constraint("Vertical", 14),
    Sketcher.Constraint("Horizontal", 15),
    Sketcher.Constraint("Symmetric", 5, 2, 8, 2, -2),
    Sketcher.Constraint("Symmetric", 7, 2, 10, 2, -2),
    Sketcher.Constraint("Symmetric", 1, 2, 12, 2, -2),
    Sketcher.Constraint("Symmetric", 3, 2, 14, 2, -2),
    Sketcher.Constraint("Vertical", 3, 2, 4, 2),
    Sketcher.Constraint("Vertical", 2, 2, 5, 2),
    Sketcher.Constraint("Equal", 2, 4),
    Sketcher.Constraint("DistanceY", 0, 2, 0, 1, Q("8 mm")),
    Sketcher.Constraint("DistanceY", 0, 2, -1, 1, Q("18 mm")),
    Sketcher.Constraint("DistanceY", -1, 1, 4, 2, Q("20 mm")),
    Sketcher.Constraint("DistanceX", 9, 2, 4, 2, Q("39 mm")),
    Sketcher.Constraint("DistanceX", 1, 1, 1, 2, Q("10.988682 mm")),
])
pocket4 = body.newObject("PartDesign::Pocket", "Pocket003")
pocket4.Profile = sketch17
pocket4.Length = 14

doc.recompute()
